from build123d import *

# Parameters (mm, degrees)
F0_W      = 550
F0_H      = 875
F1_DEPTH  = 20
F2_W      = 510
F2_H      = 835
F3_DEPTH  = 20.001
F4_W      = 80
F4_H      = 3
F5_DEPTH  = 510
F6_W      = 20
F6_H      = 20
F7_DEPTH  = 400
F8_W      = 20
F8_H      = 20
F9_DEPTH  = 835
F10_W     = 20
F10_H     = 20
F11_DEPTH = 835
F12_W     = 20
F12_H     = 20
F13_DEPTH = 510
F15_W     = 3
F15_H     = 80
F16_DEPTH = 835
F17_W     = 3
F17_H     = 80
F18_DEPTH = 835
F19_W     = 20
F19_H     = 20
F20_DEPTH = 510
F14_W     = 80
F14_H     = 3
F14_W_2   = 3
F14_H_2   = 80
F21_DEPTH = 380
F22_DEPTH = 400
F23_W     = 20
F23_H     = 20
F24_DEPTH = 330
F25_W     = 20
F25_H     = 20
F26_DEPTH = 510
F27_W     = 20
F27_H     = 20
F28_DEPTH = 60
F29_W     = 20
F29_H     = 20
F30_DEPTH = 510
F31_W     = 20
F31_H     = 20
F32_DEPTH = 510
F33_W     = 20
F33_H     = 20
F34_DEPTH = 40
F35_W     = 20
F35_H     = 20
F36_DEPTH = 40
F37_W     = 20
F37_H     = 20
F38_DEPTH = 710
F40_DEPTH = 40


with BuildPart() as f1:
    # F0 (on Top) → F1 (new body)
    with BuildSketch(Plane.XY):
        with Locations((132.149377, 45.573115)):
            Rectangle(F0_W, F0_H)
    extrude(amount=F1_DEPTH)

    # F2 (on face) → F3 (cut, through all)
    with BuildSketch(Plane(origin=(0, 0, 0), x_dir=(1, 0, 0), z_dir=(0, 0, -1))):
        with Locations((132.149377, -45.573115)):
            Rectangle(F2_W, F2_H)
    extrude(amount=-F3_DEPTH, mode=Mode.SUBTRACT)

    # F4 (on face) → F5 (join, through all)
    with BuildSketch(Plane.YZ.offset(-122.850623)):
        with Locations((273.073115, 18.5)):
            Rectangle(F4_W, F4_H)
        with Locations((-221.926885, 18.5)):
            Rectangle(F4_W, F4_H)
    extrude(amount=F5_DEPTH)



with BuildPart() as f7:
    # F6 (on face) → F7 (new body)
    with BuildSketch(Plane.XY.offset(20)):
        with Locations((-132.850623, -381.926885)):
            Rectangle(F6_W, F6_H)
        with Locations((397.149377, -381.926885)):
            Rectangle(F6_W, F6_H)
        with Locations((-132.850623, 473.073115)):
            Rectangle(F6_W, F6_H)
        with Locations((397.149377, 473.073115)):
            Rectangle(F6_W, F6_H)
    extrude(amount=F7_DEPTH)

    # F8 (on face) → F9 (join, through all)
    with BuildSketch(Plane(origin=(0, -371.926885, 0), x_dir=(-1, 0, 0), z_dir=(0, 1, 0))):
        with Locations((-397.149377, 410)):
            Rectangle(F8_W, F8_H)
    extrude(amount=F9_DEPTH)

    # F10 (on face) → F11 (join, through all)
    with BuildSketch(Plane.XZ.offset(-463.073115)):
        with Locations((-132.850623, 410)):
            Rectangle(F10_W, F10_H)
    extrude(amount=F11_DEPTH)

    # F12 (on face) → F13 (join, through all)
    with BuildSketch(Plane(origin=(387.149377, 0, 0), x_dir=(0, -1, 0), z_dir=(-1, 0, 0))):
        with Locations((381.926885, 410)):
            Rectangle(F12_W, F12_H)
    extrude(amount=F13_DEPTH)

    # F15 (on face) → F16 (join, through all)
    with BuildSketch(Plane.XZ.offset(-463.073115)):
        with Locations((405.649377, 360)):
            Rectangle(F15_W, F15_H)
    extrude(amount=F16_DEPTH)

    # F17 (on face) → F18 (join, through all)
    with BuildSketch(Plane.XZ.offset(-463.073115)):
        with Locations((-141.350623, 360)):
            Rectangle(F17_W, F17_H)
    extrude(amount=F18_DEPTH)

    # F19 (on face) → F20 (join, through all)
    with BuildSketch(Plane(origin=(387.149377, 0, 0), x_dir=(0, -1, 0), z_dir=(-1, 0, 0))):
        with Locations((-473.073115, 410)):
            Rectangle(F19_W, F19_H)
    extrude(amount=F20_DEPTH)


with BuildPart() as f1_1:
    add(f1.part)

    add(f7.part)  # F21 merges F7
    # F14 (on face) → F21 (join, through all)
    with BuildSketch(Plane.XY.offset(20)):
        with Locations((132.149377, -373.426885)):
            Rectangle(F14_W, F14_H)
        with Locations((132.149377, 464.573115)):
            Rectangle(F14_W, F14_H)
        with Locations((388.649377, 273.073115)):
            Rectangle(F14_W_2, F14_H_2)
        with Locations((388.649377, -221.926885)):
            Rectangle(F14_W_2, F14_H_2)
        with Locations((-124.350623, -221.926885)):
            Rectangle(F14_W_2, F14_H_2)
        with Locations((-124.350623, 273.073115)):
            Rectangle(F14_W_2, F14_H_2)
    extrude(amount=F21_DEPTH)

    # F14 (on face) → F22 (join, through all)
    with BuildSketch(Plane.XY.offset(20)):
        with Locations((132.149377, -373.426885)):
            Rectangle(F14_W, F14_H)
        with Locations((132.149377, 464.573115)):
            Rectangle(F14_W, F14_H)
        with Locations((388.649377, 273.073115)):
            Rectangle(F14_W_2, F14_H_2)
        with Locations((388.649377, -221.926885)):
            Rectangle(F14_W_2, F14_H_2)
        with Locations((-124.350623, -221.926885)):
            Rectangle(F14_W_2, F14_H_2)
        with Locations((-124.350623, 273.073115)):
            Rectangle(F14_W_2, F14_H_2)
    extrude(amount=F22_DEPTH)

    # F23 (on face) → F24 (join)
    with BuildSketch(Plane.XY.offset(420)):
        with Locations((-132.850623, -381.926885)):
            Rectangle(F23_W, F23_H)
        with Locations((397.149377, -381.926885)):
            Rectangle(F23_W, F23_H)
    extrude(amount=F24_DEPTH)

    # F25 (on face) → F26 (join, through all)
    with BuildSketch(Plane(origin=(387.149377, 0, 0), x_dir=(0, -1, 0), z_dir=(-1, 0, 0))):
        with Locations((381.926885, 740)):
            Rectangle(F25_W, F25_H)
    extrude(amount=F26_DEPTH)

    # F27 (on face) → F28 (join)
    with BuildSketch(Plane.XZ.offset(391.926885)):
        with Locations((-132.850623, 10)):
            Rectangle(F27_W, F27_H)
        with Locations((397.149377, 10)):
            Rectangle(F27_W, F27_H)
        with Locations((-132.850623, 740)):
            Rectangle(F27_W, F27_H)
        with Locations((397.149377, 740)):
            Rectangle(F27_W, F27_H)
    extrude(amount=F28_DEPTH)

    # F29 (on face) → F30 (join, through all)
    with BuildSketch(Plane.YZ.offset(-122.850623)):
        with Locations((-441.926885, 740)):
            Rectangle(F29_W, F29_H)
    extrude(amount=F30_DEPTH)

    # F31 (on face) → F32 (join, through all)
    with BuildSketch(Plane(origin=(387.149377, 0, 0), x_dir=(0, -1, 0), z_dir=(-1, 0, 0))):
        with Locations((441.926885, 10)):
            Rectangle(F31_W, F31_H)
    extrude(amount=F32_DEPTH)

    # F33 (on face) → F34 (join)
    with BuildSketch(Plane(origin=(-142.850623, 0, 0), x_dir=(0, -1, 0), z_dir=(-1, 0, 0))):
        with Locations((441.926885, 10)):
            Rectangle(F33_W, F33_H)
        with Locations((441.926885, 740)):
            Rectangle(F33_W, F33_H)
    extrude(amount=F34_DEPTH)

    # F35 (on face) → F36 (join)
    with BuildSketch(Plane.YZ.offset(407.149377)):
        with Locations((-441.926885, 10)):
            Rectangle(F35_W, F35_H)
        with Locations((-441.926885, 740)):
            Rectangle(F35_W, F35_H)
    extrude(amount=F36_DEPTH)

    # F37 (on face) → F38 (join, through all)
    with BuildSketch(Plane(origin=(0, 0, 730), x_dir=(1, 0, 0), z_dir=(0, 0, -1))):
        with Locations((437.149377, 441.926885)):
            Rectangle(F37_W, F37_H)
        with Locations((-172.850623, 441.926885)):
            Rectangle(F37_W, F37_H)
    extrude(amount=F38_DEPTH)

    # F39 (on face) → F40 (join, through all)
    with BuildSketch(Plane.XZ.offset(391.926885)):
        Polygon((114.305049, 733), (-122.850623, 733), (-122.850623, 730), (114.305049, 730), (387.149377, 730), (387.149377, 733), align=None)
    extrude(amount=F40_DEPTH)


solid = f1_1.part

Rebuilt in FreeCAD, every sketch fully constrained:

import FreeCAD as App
import Part
import Sketcher

V = App.Vector


def add_polygon(sketch, points):
    """Adds a closed chain of lines whose ends are joined by coincident constraints."""
    first, n = sketch.GeometryCount, len(points)
    for a, b in zip(points, points[1:] + points[:1]):
        sketch.addGeometry(Part.LineSegment(App.Vector(*a, 0), App.Vector(*b, 0)), False)
    for i in range(n):
        sketch.addConstraint(Sketcher.Constraint("Coincident", first + i, 2, first + (i + 1) % n, 1))

doc = App.newDocument("Part")
body = doc.addObject("PartDesign::Body", "Body")

# Sketch on XY plane
sketch1 = body.newObject("Sketcher::SketchObject", "Sketch")
sketch1.AttachmentSupport = (doc.getObject("XY_Plane"), [""])
sketch1.MapMode = "FlatFace"
add_polygon(sketch1, [(-143, 483), (-143, -392), (407, -392), (407, 483)])  # lines 0-3
sketch1.addConstraint([
    Sketcher.Constraint("Vertical", 0),
    Sketcher.Constraint("Horizontal", 1),
    Sketcher.Constraint("Vertical", 2),
    Sketcher.Constraint("Horizontal", 3),
    Sketcher.Constraint("DistanceX", 1, 1, 1, 2, 550.0),
    Sketcher.Constraint("DistanceY", 0, 2, 0, 1, 875.0),
    Sketcher.Constraint("DistanceX", 0, 2, -1, 1, 142.850623),
    Sketcher.Constraint("DistanceY", 0, 2, -1, 1, 391.926885),
])
pad1 = body.newObject("PartDesign::Pad", "Pad")
pad1.Profile = sketch1
pad1.Length = 20

# Sketch on XY plane
sketch2 = body.newObject("Sketcher::SketchObject", "Sketch001")
sketch2.AttachmentSupport = (doc.getObject("XY_Plane"), [""])
sketch2.MapMode = "FlatFace"
add_polygon(sketch2, [(-123, -372), (-123, 463), (387, 463), (387, -372)])  # lines 0-3
sketch2.addConstraint([
    Sketcher.Constraint("Vertical", 0),
    Sketcher.Constraint("Horizontal", 1),
    Sketcher.Constraint("Vertical", 2),
    Sketcher.Constraint("Horizontal", 3),
    Sketcher.Constraint("DistanceX", 1, 1, 1, 2, 510.0),
    Sketcher.Constraint("DistanceY", 0, 1, 0, 2, 835.0),
    Sketcher.Constraint("DistanceX", 0, 2, -1, 1, 122.850623),
    Sketcher.Constraint("DistanceY", -1, 1, 0, 2, 463.073115),
])
pocket1 = body.newObject("PartDesign::Pocket", "Pocket")
pocket1.Profile = sketch2
pocket1.Type = "ThroughAll"
pocket1.Reversed = True

# Sketch on YZ plane
sketch3 = body.newObject("Sketcher::SketchObject", "Sketch002")
sketch3.AttachmentSupport = (doc.getObject("YZ_Plane"), [""])
sketch3.MapMode = "FlatFace"
sketch3.AttachmentOffset = App.Placement(V(0, 0, -122.850623), App.Rotation())
add_polygon(sketch3, [(233.1, 20), (233.1, 17), (313.1, 17), (313.1, 20)])  # lines 0-3
add_polygon(sketch3, [(-261.9, 20), (-261.9, 17), (-181.9, 17), (-181.9, 20)])  # lines 4-7
sketch3.addConstraint([
    Sketcher.Constraint("Vertical", 0),
    Sketcher.Constraint("Horizontal", 1),
    Sketcher.Constraint("Vertical", 2),
    Sketcher.Constraint("Horizontal", 3),
    Sketcher.Constraint("Vertical", 4),
    Sketcher.Constraint("Horizontal", 5),
    Sketcher.Constraint("Vertical", 6),
    Sketcher.Constraint("Horizontal", 7),
    Sketcher.Constraint("Horizontal", 1, 2, 4, 2),
    Sketcher.Constraint("Horizontal", 3, 2, 6, 2),
    Sketcher.Constraint("Equal", 3, 5),
    Sketcher.Constraint("DistanceX", 1, 1, 1, 2, 80.0),
    Sketcher.Constraint("DistanceY", 0, 2, 0, 1, 3.0),
    Sketcher.Constraint("DistanceY", -1, 1, 0, 2, 17.0),
    Sketcher.Constraint("DistanceX", 4, 2, 0, 2, 495.0),
    Sketcher.Constraint("DistanceX", -1, 1, 0, 2, 233.073115),
])
pad2 = body.newObject("PartDesign::Pad", "Pad001")
pad2.Profile = sketch3
pad2.Type = "UpToLast"
body2 = doc.addObject("PartDesign::Body", "Body001")
body2.AllowCompound = True

# Sketch on XY plane
sketch4 = body2.newObject("Sketcher::SketchObject", "Sketch003")
sketch4.AttachmentSupport = (doc.getObject("XY_Plane001"), [""])
sketch4.MapMode = "FlatFace"
sketch4.AttachmentOffset = App.Placement(V(0, 0, 20), App.Rotation())
add_polygon(sketch4, [(-143, -372), (-143, -392), (-123, -392), (-123, -372)])  # lines 0-3
add_polygon(sketch4, [(387, -372), (387, -392), (407, -392), (407, -372)])  # lines 4-7
add_polygon(sketch4, [(-143, 483), (-143, 463), (-123, 463), (-123, 483)])  # lines 8-11
add_polygon(sketch4, [(387, 483), (387, 463), (407, 463), (407, 483)])  # lines 12-15
sketch4.addConstraint([
    Sketcher.Constraint("Vertical", 0),
    Sketcher.Constraint("Horizontal", 1),
    Sketcher.Constraint("Vertical", 2),
    Sketcher.Constraint("Horizontal", 3),
    Sketcher.Constraint("Vertical", 4),
    Sketcher.Constraint("Horizontal", 5),
    Sketcher.Constraint("Vertical", 6),
    Sketcher.Constraint("Horizontal", 7),
    Sketcher.Constraint("Vertical", 8),
    Sketcher.Constraint("Horizontal", 9),
    Sketcher.Constraint("Vertical", 10),
    Sketcher.Constraint("Horizontal", 11),
    Sketcher.Constraint("Vertical", 12),
    Sketcher.Constraint("Horizontal", 13),
    Sketcher.Constraint("Vertical", 14),
    Sketcher.Constraint("Horizontal", 15),
    Sketcher.Constraint("Horizontal", 1, 2, 4, 2),
    Sketcher.Constraint("Horizontal", 3, 2, 6, 2),
    Sketcher.Constraint("Horizontal", 9, 2, 12, 2),
    Sketcher.Constraint("Horizontal", 11, 2, 14, 2),
    Sketcher.Constraint("Vertical", 3, 2, 8, 2),
    Sketcher.Constraint("Vertical", 2, 2, 9, 2),
    Sketcher.Constraint("Vertical", 7, 2, 12, 2),
    Sketcher.Constraint("Vertical", 6, 2, 13, 2),
    Sketcher.Constraint("Equal", 3, 5),
    Sketcher.Constraint("Equal", 15, 0),
    Sketcher.Constraint("Equal", 6, 8),
    Sketcher.Constraint("DistanceX", 1, 1, 1, 2, 20.0),
    Sketcher.Constraint("DistanceX", 1, 2, 4, 2, 510.0),
    Sketcher.Constraint("DistanceY", 3, 2, 8, 2, 835.0),
    Sketcher.Constraint("DistanceX", 0, 2, -1, 1, 142.850623),
    Sketcher.Constraint("DistanceY", 0, 2, -1, 1, 391.926885),
])
pad3 = body2.newObject("PartDesign::Pad", "Pad002")
pad3.Profile = sketch4
pad3.Length = 400

# Sketch on XZ plane
sketch5 = body2.newObject("Sketcher::SketchObject", "Sketch004")
sketch5.AttachmentSupport = (doc.getObject("XZ_Plane001"), [""])
sketch5.MapMode = "FlatFace"
sketch5.AttachmentOffset = App.Placement(V(0, 0, 371.926885), App.Rotation())
add_polygon(sketch5, [(407, 420), (407, 400), (387, 400), (387, 420)])  # lines 0-3
sketch5.addConstraint([
    Sketcher.Constraint("Vertical", 0),
    Sketcher.Constraint("Horizontal", 1),
    Sketcher.Constraint("Vertical", 2),
    Sketcher.Constraint("Horizontal", 3),
    Sketcher.Constraint("Equal", 3, 0),
    Sketcher.Constraint("DistanceX", 1, 2, 1, 1, 20.0),
    Sketcher.Constraint("DistanceY", -1, 1, 0, 2, 400.0),
    Sketcher.Constraint("DistanceX", -1, 1, 0, 2, 407.149377),
])
pad4 = body2.newObject("PartDesign::Pad", "Pad003")
pad4.Profile = sketch5
pad4.Type = "UpToLast"
pad4.Reversed = True

# Sketch on XZ plane
sketch6 = body2.newObject("Sketcher::SketchObject", "Sketch005")
sketch6.AttachmentSupport = (doc.getObject("XZ_Plane001"), [""])
sketch6.MapMode = "FlatFace"
sketch6.AttachmentOffset = App.Placement(V(0, 0, -463.073115), App.Rotation())
add_polygon(sketch6, [(-143, 420), (-143, 400), (-123, 400), (-123, 420)])  # lines 0-3
sketch6.addConstraint([
    Sketcher.Constraint("Vertical", 0),
    Sketcher.Constraint("Horizontal", 1),
    Sketcher.Constraint("Vertical", 2),
    Sketcher.Constraint("Horizontal", 3),
    Sketcher.Constraint("Equal", 3, 0),
    Sketcher.Constraint("DistanceX", 1, 1, 1, 2, 20.0),
    Sketcher.Constraint("DistanceY", -1, 1, 0, 2, 400.0),
    Sketcher.Constraint("DistanceX", 0, 2, -1, 1, 142.850623),
])
pad5 = body2.newObject("PartDesign::Pad", "Pad004")
pad5.Profile = sketch6
pad5.Type = "UpToLast"

# Sketch on YZ plane
sketch7 = body2.newObject("Sketcher::SketchObject", "Sketch006")
sketch7.AttachmentSupport = (doc.getObject("YZ_Plane001"), [""])
sketch7.MapMode = "FlatFace"
sketch7.AttachmentOffset = App.Placement(V(0, 0, 387.149377), App.Rotation())
add_polygon(sketch7, [(-372, 420), (-372, 400), (-392, 400), (-392, 420)])  # lines 0-3
sketch7.addConstraint([
    Sketcher.Constraint("Vertical", 0),
    Sketcher.Constraint("Horizontal", 1),
    Sketcher.Constraint("Vertical", 2),
    Sketcher.Constraint("Horizontal", 3),
    Sketcher.Constraint("Equal", 3, 0),
    Sketcher.Constraint("DistanceX", 1, 2, 1, 1, 20.0),
    Sketcher.Constraint("DistanceY", -1, 1, 0, 2, 400.0),
    Sketcher.Constraint("DistanceX", 0, 2, -1, 1, 371.926885),
])
pad6 = body2.newObject("PartDesign::Pad", "Pad005")
pad6.Profile = sketch7
pad6.Type = "UpToLast"
pad6.Reversed = True

# Sketch on XZ plane
sketch8 = body2.newObject("Sketcher::SketchObject", "Sketch007")
sketch8.AttachmentSupport = (doc.getObject("XZ_Plane001"), [""])
sketch8.MapMode = "FlatFace"
sketch8.AttachmentOffset = App.Placement(V(0, 0, -463.073115), App.Rotation())
add_polygon(sketch8, [(404.1, 400), (404.1, 320), (407.1, 320), (407.1, 400)])  # lines 0-3
sketch8.addConstraint([
    Sketcher.Constraint("Vertical", 0),
    Sketcher.Constraint("Horizontal", 1),
    Sketcher.Constraint("Vertical", 2),
    Sketcher.Constraint("Horizontal", 3),
    Sketcher.Constraint("DistanceX", 1, 1, 1, 2, 3.0),
    Sketcher.Constraint("DistanceY", 0, 2, 0, 1, 80.0),
    Sketcher.Constraint("DistanceY", -1, 1, 0, 2, 320.0),
    Sketcher.Constraint("DistanceX", -1, 1, 0, 2, 404.149377),
])
pad7 = body2.newObject("PartDesign::Pad", "Pad006")
pad7.Profile = sketch8
pad7.Type = "UpToLast"

# Sketch on XZ plane
sketch9 = body2.newObject("Sketcher::SketchObject", "Sketch008")
sketch9.AttachmentSupport = (doc.getObject("XZ_Plane001"), [""])
sketch9.MapMode = "FlatFace"
sketch9.AttachmentOffset = App.Placement(V(0, 0, -463.073115), App.Rotation())
add_polygon(sketch9, [(-142.9, 400), (-142.9, 320), (-139.9, 320), (-139.9, 400)])  # lines 0-3
sketch9.addConstraint([
    Sketcher.Constraint("Vertical", 0),
    Sketcher.Constraint("Horizontal", 1),
    Sketcher.Constraint("Vertical", 2),
    Sketcher.Constraint("Horizontal", 3),
    Sketcher.Constraint("DistanceX", 1, 1, 1, 2, 3.0),
    Sketcher.Constraint("DistanceY", 0, 2, 0, 1, 80.0),
    Sketcher.Constraint("DistanceY", -1, 1, 0, 2, 320.0),
    Sketcher.Constraint("DistanceX", 0, 2, -1, 1, 142.850623),
])
pad8 = body2.newObject("PartDesign::Pad", "Pad007")
pad8.Profile = sketch9
pad8.Type = "UpToLast"

# Sketch on YZ plane
sketch10 = body2.newObject("Sketcher::SketchObject", "Sketch009")
sketch10.AttachmentSupport = (doc.getObject("YZ_Plane001"), [""])
sketch10.MapMode = "FlatFace"
sketch10.AttachmentOffset = App.Placement(V(0, 0, 387.149377), App.Rotation())
add_polygon(sketch10, [(483, 420), (483, 400), (463, 400), (463, 420)])  # lines 0-3
sketch10.addConstraint([
    Sketcher.Constraint("Vertical", 0),
    Sketcher.Constraint("Horizontal", 1),
    Sketcher.Constraint("Vertical", 2),
    Sketcher.Constraint("Horizontal", 3),
    Sketcher.Constraint("Equal", 3, 0),
    Sketcher.Constraint("DistanceX", 1, 2, 1, 1, 20.0),
    Sketcher.Constraint("DistanceY", -1, 1, 0, 2, 400.0),
    Sketcher.Constraint("DistanceX", -1, 1, 0, 2, 483.073115),
])
pad9 = body2.newObject("PartDesign::Pad", "Pad008")
pad9.Profile = sketch10
pad9.Type = "UpToLast"
pad9.Reversed = True
doc.recompute()

boolean = body.newObject("PartDesign::Boolean", "Boolean")
boolean.Type = "Fuse"
boolean.addObjects([body2])

# Sketch on XY plane
sketch11 = body.newObject("Sketcher::SketchObject", "Sketch010")
sketch11.AttachmentSupport = (doc.getObject("XY_Plane"), [""])
sketch11.MapMode = "FlatFace"
sketch11.AttachmentOffset = App.Placement(V(0, 0, 20), App.Rotation())
add_polygon(sketch11, [(92.1, -371.9), (92.1, -374.9), (172.1, -374.9), (172.1, -371.9)])  # lines 0-3
add_polygon(sketch11, [(92.1, 466.1), (92.1, 463.1), (172.1, 463.1), (172.1, 466.1)])  # lines 4-7
add_polygon(sketch11, [(387.1, 313.1), (387.1, 233.1), (390.1, 233.1), (390.1, 313.1)])  # lines 8-11
add_polygon(sketch11, [(387.1, -181.9), (387.1, -261.9), (390.1, -261.9), (390.1, -181.9)])  # lines 12-15
add_polygon(sketch11, [(-125.9, -181.9), (-125.9, -261.9), (-122.9, -261.9), (-122.9, -181.9)])  # lines 16-19
add_polygon(sketch11, [(-125.9, 313.1), (-125.9, 233.1), (-122.9, 233.1), (-122.9, 313.1)])  # lines 20-23
sketch11.addConstraint([
    Sketcher.Constraint("Vertical", 0),
    Sketcher.Constraint("Horizontal", 1),
    Sketcher.Constraint("Vertical", 2),
    Sketcher.Constraint("Horizontal", 3),
    Sketcher.Constraint("Vertical", 4),
    Sketcher.Constraint("Horizontal", 5),
    Sketcher.Constraint("Vertical", 6),
    Sketcher.Constraint("Horizontal", 7),
    Sketcher.Constraint("Vertical", 8),
    Sketcher.Constraint("Horizontal", 9),
    Sketcher.Constraint("Vertical", 10),
    Sketcher.Constraint("Horizontal", 11),
    Sketcher.Constraint("Vertical", 12),
    Sketcher.Constraint("Horizontal", 13),
    Sketcher.Constraint("Vertical", 14),
    Sketcher.Constraint("Horizontal", 15),
    Sketcher.Constraint("Vertical", 16),
    Sketcher.Constraint("Horizontal", 17),
    Sketcher.Constraint("Vertical", 18),
    Sketcher.Constraint("Horizontal", 19),
    Sketcher.Constraint("Vertical", 20),
    Sketcher.Constraint("Horizontal", 21),
    Sketcher.Constraint("Vertical", 22),
    Sketcher.Constraint("Horizontal", 23),
    Sketcher.Constraint("Horizontal", 13, 2, 16, 2),
    Sketcher.Constraint("Horizontal", 15, 2, 18, 2),
    Sketcher.Constraint("Horizontal", 9, 2, 20, 2),
    Sketcher.Constraint("Horizontal", 11, 2, 22, 2),
    Sketcher.Constraint("Vertical", 3, 2, 4, 2),
    Sketcher.Constraint("Vertical", 2, 2, 5, 2),
    Sketcher.Constraint("Vertical", 11, 2, 12, 2),
    Sketcher.Constraint("Vertical", 10, 2, 13, 2),
    Sketcher.Constraint("Vertical", 19, 2, 20, 2),
    Sketcher.Constraint("Vertical", 18, 2, 21, 2),
    Sketcher.Constraint("Equal", 15, 17),
    Sketcher.Constraint("Equal", 23, 0),
    Sketcher.Constraint("Equal", 2, 4),
    Sketcher.Constraint("Equal", 7, 8),
    Sketcher.Constraint("Equal", 10, 12),
    Sketcher.Constraint("DistanceX", 1, 1, 1, 2, 80.0),
    Sketcher.Constraint("DistanceX", 9, 1, 9, 2, 3.0),
    Sketcher.Constraint("DistanceY", 3, 2, 4, 2, 835.0),
    Sketcher.Constraint("DistanceX", 5, 2, 8, 2, 215.0),
    Sketcher.Constraint("DistanceY", 8, 2, 5, 2, 230.0),
    Sketcher.Constraint("DistanceY", 2, 2, 12, 2, 110.0),
    Sketcher.Constraint("DistanceX", 16, 2, 3, 2, 218.0),
    Sketcher.Constraint("DistanceX", -1, 1, 0, 2, 92.149377),
    Sketcher.Constraint("DistanceY", 0, 2, -1, 1, 374.926885),
])
pad10 = body.newObject("PartDesign::Pad", "Pad009")
pad10.Profile = sketch11
pad10.Length = 380

# Sketch on XY plane
sketch12 = body.newObject("Sketcher::SketchObject", "Sketch011")
sketch12.AttachmentSupport = (doc.getObject("XY_Plane"), [""])
sketch12.MapMode = "FlatFace"
sketch12.AttachmentOffset = App.Placement(V(0, 0, 20), App.Rotation())
add_polygon(sketch12, [(92.1, -371.9), (92.1, -374.9), (172.1, -374.9), (172.1, -371.9)])  # lines 0-3
add_polygon(sketch12, [(92.1, 466.1), (92.1, 463.1), (172.1, 463.1), (172.1, 466.1)])  # lines 4-7
add_polygon(sketch12, [(387.1, 313.1), (387.1, 233.1), (390.1, 233.1), (390.1, 313.1)])  # lines 8-11
add_polygon(sketch12, [(387.1, -181.9), (387.1, -261.9), (390.1, -261.9), (390.1, -181.9)])  # lines 12-15
add_polygon(sketch12, [(-125.9, -181.9), (-125.9, -261.9), (-122.9, -261.9), (-122.9, -181.9)])  # lines 16-19
add_polygon(sketch12, [(-125.9, 313.1), (-125.9, 233.1), (-122.9, 233.1), (-122.9, 313.1)])  # lines 20-23
sketch12.addConstraint([
    Sketcher.Constraint("Vertical", 0),
    Sketcher.Constraint("Horizontal", 1),
    Sketcher.Constraint("Vertical", 2),
    Sketcher.Constraint("Horizontal", 3),
    Sketcher.Constraint("Vertical", 4),
    Sketcher.Constraint("Horizontal", 5),
    Sketcher.Constraint("Vertical", 6),
    Sketcher.Constraint("Horizontal", 7),
    Sketcher.Constraint("Vertical", 8),
    Sketcher.Constraint("Horizontal", 9),
    Sketcher.Constraint("Vertical", 10),
    Sketcher.Constraint("Horizontal", 11),
    Sketcher.Constraint("Vertical", 12),
    Sketcher.Constraint("Horizontal", 13),
    Sketcher.Constraint("Vertical", 14),
    Sketcher.Constraint("Horizontal", 15),
    Sketcher.Constraint("Vertical", 16),
    Sketcher.Constraint("Horizontal", 17),
    Sketcher.Constraint("Vertical", 18),
    Sketcher.Constraint("Horizontal", 19),
    Sketcher.Constraint("Vertical", 20),
    Sketcher.Constraint("Horizontal", 21),
    Sketcher.Constraint("Vertical", 22),
    Sketcher.Constraint("Horizontal", 23),
    Sketcher.Constraint("Horizontal", 13, 2, 16, 2),
    Sketcher.Constraint("Horizontal", 15, 2, 18, 2),
    Sketcher.Constraint("Horizontal", 9, 2, 20, 2),
    Sketcher.Constraint("Horizontal", 11, 2, 22, 2),
    Sketcher.Constraint("Vertical", 3, 2, 4, 2),
    Sketcher.Constraint("Vertical", 2, 2, 5, 2),
    Sketcher.Constraint("Vertical", 11, 2, 12, 2),
    Sketcher.Constraint("Vertical", 10, 2, 13, 2),
    Sketcher.Constraint("Vertical", 19, 2, 20, 2),
    Sketcher.Constraint("Vertical", 18, 2, 21, 2),
    Sketcher.Constraint("Equal", 15, 17),
    Sketcher.Constraint("Equal", 23, 0),
    Sketcher.Constraint("Equal", 2, 4),
    Sketcher.Constraint("Equal", 7, 8),
    Sketcher.Constraint("Equal", 10, 12),
    Sketcher.Constraint("DistanceX", 1, 1, 1, 2, 80.0),
    Sketcher.Constraint("DistanceX", 9, 1, 9, 2, 3.0),
    Sketcher.Constraint("DistanceY", 3, 2, 4, 2, 835.0),
    Sketcher.Constraint("DistanceX", 5, 2, 8, 2, 215.0),
    Sketcher.Constraint("DistanceY", 8, 2, 5, 2, 230.0),
    Sketcher.Constraint("DistanceY", 2, 2, 12, 2, 110.0),
    Sketcher.Constraint("DistanceX", 16, 2, 3, 2, 218.0),
    Sketcher.Constraint("DistanceX", -1, 1, 0, 2, 92.149377),
    Sketcher.Constraint("DistanceY", 0, 2, -1, 1, 374.926885),
])
pad11 = body.newObject("PartDesign::Pad", "Pad010")
pad11.Profile = sketch12
pad11.Length = 400

# Sketch on XY plane
sketch13 = body.newObject("Sketcher::SketchObject", "Sketch012")
sketch13.AttachmentSupport = (doc.getObject("XY_Plane"), [""])
sketch13.MapMode = "FlatFace"
sketch13.AttachmentOffset = App.Placement(V(0, 0, 420), App.Rotation())
add_polygon(sketch13, [(-143, -372), (-143, -392), (-123, -392), (-123, -372)])  # lines 0-3
add_polygon(sketch13, [(387, -372), (387, -392), (407, -392), (407, -372)])  # lines 4-7
sketch13.addConstraint([
    Sketcher.Constraint("Vertical", 0),
    Sketcher.Constraint("Horizontal", 1),
    Sketcher.Constraint("Vertical", 2),
    Sketcher.Constraint("Horizontal", 3),
    Sketcher.Constraint("Vertical", 4),
    Sketcher.Constraint("Horizontal", 5),
    Sketcher.Constraint("Vertical", 6),
    Sketcher.Constraint("Horizontal", 7),
    Sketcher.Constraint("Horizontal", 1, 2, 4, 2),
    Sketcher.Constraint("Horizontal", 3, 2, 6, 2),
    Sketcher.Constraint("Equal", 3, 5),
    Sketcher.Constraint("Equal", 7, 0),
    Sketcher.Constraint("DistanceX", 1, 1, 1, 2, 20.0),
    Sketcher.Constraint("DistanceX", 1, 2, 4, 2, 510.0),
    Sketcher.Constraint("DistanceX", 0, 2, -1, 1, 142.850623),
    Sketcher.Constraint("DistanceY", 0, 2, -1, 1, 391.926885),
])
pad12 = body.newObject("PartDesign::Pad", "Pad011")
pad12.Profile = sketch13
pad12.Length = 330

# Sketch on YZ plane
sketch14 = body.newObject("Sketcher::SketchObject", "Sketch013")
sketch14.AttachmentSupport = (doc.getObject("YZ_Plane"), [""])
sketch14.MapMode = "FlatFace"
sketch14.AttachmentOffset = App.Placement(V(0, 0, 387.149377), App.Rotation())
add_polygon(sketch14, [(-372, 750), (-372, 730), (-392, 730), (-392, 750)])  # lines 0-3
sketch14.addConstraint([
    Sketcher.Constraint("Vertical", 0),
    Sketcher.Constraint("Horizontal", 1),
    Sketcher.Constraint("Vertical", 2),
    Sketcher.Constraint("Horizontal", 3),
    Sketcher.Constraint("Equal", 3, 0),
    Sketcher.Constraint("DistanceX", 1, 2, 1, 1, 20.0),
    Sketcher.Constraint("DistanceY", -1, 1, 0, 2, 730.0),
    Sketcher.Constraint("DistanceX", 0, 2, -1, 1, 371.926885),
])
pad13 = body.newObject("PartDesign::Pad", "Pad012")
pad13.Profile = sketch14
pad13.Type = "UpToLast"
pad13.Reversed = True

# Sketch on XZ plane
sketch15 = body.newObject("Sketcher::SketchObject", "Sketch014")
sketch15.AttachmentSupport = (doc.getObject("XZ_Plane"), [""])
sketch15.MapMode = "FlatFace"
sketch15.AttachmentOffset = App.Placement(V(0, 0, 391.926885), App.Rotation())
add_polygon(sketch15, [(-143, 20), (-143, 0), (-123, 0), (-123, 20)])  # lines 0-3
add_polygon(sketch15, [(387, 20), (387, 0), (407, 0), (407, 20)])  # lines 4-7
add_polygon(sketch15, [(-143, 750), (-143, 730), (-123, 730), (-123, 750)])  # lines 8-11
add_polygon(sketch15, [(387, 750), (387, 730), (407, 730), (407, 750)])  # lines 12-15
sketch15.addConstraint([
    Sketcher.Constraint("Vertical", 0),
    Sketcher.Constraint("Horizontal", 1),
    Sketcher.Constraint("Vertical", 2),
    Sketcher.Constraint("Horizontal", 3),
    Sketcher.Constraint("Vertical", 4),
    Sketcher.Constraint("Horizontal", 5),
    Sketcher.Constraint("Vertical", 6),
    Sketcher.Constraint("Horizontal", 7),
    Sketcher.Constraint("Vertical", 8),
    Sketcher.Constraint("Horizontal", 9),
    Sketcher.Constraint("Vertical", 10),
    Sketcher.Constraint("Horizontal", 11),
    Sketcher.Constraint("Vertical", 12),
    Sketcher.Constraint("Horizontal", 13),
    Sketcher.Constraint("Vertical", 14),
    Sketcher.Constraint("Horizontal", 15),
    Sketcher.Constraint("PointOnObject", 0, 2, -1),
    Sketcher.Constraint("PointOnObject", 4, 2, -1),
    Sketcher.Constraint("Horizontal", 3, 2, 6, 2),
    Sketcher.Constraint("Horizontal", 9, 2, 12, 2),
    Sketcher.Constraint("Horizontal", 11, 2, 14, 2),
    Sketcher.Constraint("Vertical", 3, 2, 8, 2),
    Sketcher.Constraint("Vertical", 2, 2, 9, 2),
    Sketcher.Constraint("Vertical", 7, 2, 12, 2),
    Sketcher.Constraint("Vertical", 6, 2, 13, 2),
    Sketcher.Constraint("Equal", 3, 5),
    Sketcher.Constraint("Equal", 15, 0),
    Sketcher.Constraint("Equal", 6, 8),
    Sketcher.Constraint("DistanceX", 1, 1, 1, 2, 20.0),
    Sketcher.Constraint("DistanceY", -1, 1, 8, 2, 730.0),
    Sketcher.Constraint("DistanceX", 1, 2, 4, 2, 510.0),
    Sketcher.Constraint("DistanceX", 0, 2, -1, 1, 142.850623),
])
pad14 = body.newObject("PartDesign::Pad", "Pad013")
pad14.Profile = sketch15
pad14.Length = 60

# Sketch on YZ plane
sketch16 = body.newObject("Sketcher::SketchObject", "Sketch015")
sketch16.AttachmentSupport = (doc.getObject("YZ_Plane"), [""])
sketch16.MapMode = "FlatFace"
sketch16.AttachmentOffset = App.Placement(V(0, 0, -122.850623), App.Rotation())
add_polygon(sketch16, [(-452, 750), (-452, 730), (-432, 730), (-432, 750)])  # lines 0-3
sketch16.addConstraint([
    Sketcher.Constraint("Vertical", 0),
    Sketcher.Constraint("Horizontal", 1),
    Sketcher.Constraint("Vertical", 2),
    Sketcher.Constraint("Horizontal", 3),
    Sketcher.Constraint("Equal", 3, 0),
    Sketcher.Constraint("DistanceX", 1, 1, 1, 2, 20.0),
    Sketcher.Constraint("DistanceY", -1, 1, 0, 2, 730.0),
    Sketcher.Constraint("DistanceX", 0, 2, -1, 1, 451.926885),
])
pad15 = body.newObject("PartDesign::Pad", "Pad014")
pad15.Profile = sketch16
pad15.Type = "UpToLast"

# Sketch on YZ plane
sketch17 = body.newObject("Sketcher::SketchObject", "Sketch016")
sketch17.AttachmentSupport = (doc.getObject("YZ_Plane"), [""])
sketch17.MapMode = "FlatFace"
sketch17.AttachmentOffset = App.Placement(V(0, 0, 387.149377), App.Rotation())
add_polygon(sketch17, [(-432, 20), (-432, 0), (-452, 0), (-452, 20)])  # lines 0-3
sketch17.addConstraint([
    Sketcher.Constraint("Vertical", 0),
    Sketcher.Constraint("Horizontal", 1),
    Sketcher.Constraint("Vertical", 2),
    Sketcher.Constraint("Horizontal", 3),
    Sketcher.Constraint("PointOnObject", 0, 2, -1),
    Sketcher.Constraint("Equal", 3, 0),
    Sketcher.Constraint("DistanceX", 1, 2, 1, 1, 20.0),
    Sketcher.Constraint("DistanceX", 0, 2, -1, 1, 431.926885),
])
pad16 = body.newObject("PartDesign::Pad", "Pad015")
pad16.Profile = sketch17
pad16.Type = "UpToLast"
pad16.Reversed = True

# Sketch on YZ plane
sketch18 = body.newObject("Sketcher::SketchObject", "Sketch017")
sketch18.AttachmentSupport = (doc.getObject("YZ_Plane"), [""])
sketch18.MapMode = "FlatFace"
sketch18.AttachmentOffset = App.Placement(V(0, 0, -142.850623), App.Rotation())
add_polygon(sketch18, [(-432, 20), (-432, 0), (-452, 0), (-452, 20)])  # lines 0-3
add_polygon(sketch18, [(-432, 750), (-432, 730), (-452, 730), (-452, 750)])  # lines 4-7
sketch18.addConstraint([
    Sketcher.Constraint("Vertical", 0),
    Sketcher.Constraint("Horizontal", 1),
    Sketcher.Constraint("Vertical", 2),
    Sketcher.Constraint("Horizontal", 3),
    Sketcher.Constraint("Vertical", 4),
    Sketcher.Constraint("Horizontal", 5),
    Sketcher.Constraint("Vertical", 6),
    Sketcher.Constraint("Horizontal", 7),
    Sketcher.Constraint("PointOnObject", 0, 2, -1),
    Sketcher.Constraint("Vertical", 3, 2, 4, 2),
    Sketcher.Constraint("Vertical", 2, 2, 5, 2),
    Sketcher.Constraint("Equal", 7, 0),
    Sketcher.Constraint("Equal", 2, 4),
    Sketcher.Constraint("DistanceX", 1, 2, 1, 1, 20.0),
    Sketcher.Constraint("DistanceY", -1, 1, 4, 2, 730.0),
    Sketcher.Constraint("DistanceX", 0, 2, -1, 1, 431.926885),
])
pad17 = body.newObject("PartDesign::Pad", "Pad016")
pad17.Profile = sketch18
pad17.Length = 40
pad17.Reversed = True

# Sketch on YZ plane
sketch19 = body.newObject("Sketcher::SketchObject", "Sketch018")
sketch19.AttachmentSupport = (doc.getObject("YZ_Plane"), [""])
sketch19.MapMode = "FlatFace"
sketch19.AttachmentOffset = App.Placement(V(0, 0, 407.149377), App.Rotation())
add_polygon(sketch19, [(-452, 20), (-452, 0), (-432, 0), (-432, 20)])  # lines 0-3
add_polygon(sketch19, [(-452, 750), (-452, 730), (-432, 730), (-432, 750)])  # lines 4-7
sketch19.addConstraint([
    Sketcher.Constraint("Vertical", 0),
    Sketcher.Constraint("Horizontal", 1),
    Sketcher.Constraint("Vertical", 2),
    Sketcher.Constraint("Horizontal", 3),
    Sketcher.Constraint("Vertical", 4),
    Sketcher.Constraint("Horizontal", 5),
    Sketcher.Constraint("Vertical", 6),
    Sketcher.Constraint("Horizontal", 7),
    Sketcher.Constraint("PointOnObject", 0, 2, -1),
    Sketcher.Constraint("Vertical", 3, 2, 4, 2),
    Sketcher.Constraint("Vertical", 2, 2, 5, 2),
    Sketcher.Constraint("Equal", 7, 0),
    Sketcher.Constraint("Equal", 2, 4),
    Sketcher.Constraint("DistanceX", 1, 1, 1, 2, 20.0),
    Sketcher.Constraint("DistanceY", -1, 1, 4, 2, 730.0),
    Sketcher.Constraint("DistanceX", 0, 2, -1, 1, 451.926885),
])
pad18 = body.newObject("PartDesign::Pad", "Pad017")
pad18.Profile = sketch19
pad18.Length = 40

# Sketch on XY plane
sketch20 = body.newObject("Sketcher::SketchObject", "Sketch019")
sketch20.AttachmentSupport = (doc.getObject("XY_Plane"), [""])
sketch20.MapMode = "FlatFace"
sketch20.AttachmentOffset = App.Placement(V(0, 0, 730), App.Rotation())
add_polygon(sketch20, [(427, -452), (427, -432), (447, -432), (447, -452)])  # lines 0-3
add_polygon(sketch20, [(-183, -452), (-183, -432), (-163, -432), (-163, -452)])  # lines 4-7
sketch20.addConstraint([
    Sketcher.Constraint("Vertical", 0),
    Sketcher.Constraint("Horizontal", 1),
    Sketcher.Constraint("Vertical", 2),
    Sketcher.Constraint("Horizontal", 3),
    Sketcher.Constraint("Vertical", 4),
    Sketcher.Constraint("Horizontal", 5),
    Sketcher.Constraint("Vertical", 6),
    Sketcher.Constraint("Horizontal", 7),
    Sketcher.Constraint("Horizontal", 1, 2, 4, 2),
    Sketcher.Constraint("Horizontal", 3, 2, 6, 2),
    Sketcher.Constraint("Equal", 3, 5),
    Sketcher.Constraint("Equal", 7, 0),
    Sketcher.Constraint("DistanceX", 1, 1, 1, 2, 20.0),
    Sketcher.Constraint("DistanceX", 4, 2, 0, 2, 610.0),
    Sketcher.Constraint("DistanceX", -1, 1, 0, 2, 427.149377),
    Sketcher.Constraint("DistanceY", 0, 2, -1, 1, 431.926885),
])
pad19 = body.newObject("PartDesign::Pad", "Pad018")
pad19.Profile = sketch20
pad19.Type = "UpToLast"
pad19.Reversed = True

# Sketch on XZ plane
sketch21 = body.newObject("Sketcher::SketchObject", "Sketch020")
sketch21.AttachmentSupport = (doc.getObject("XZ_Plane"), [""])
sketch21.MapMode = "FlatFace"
sketch21.AttachmentOffset = App.Placement(V(0, 0, 391.926885), App.Rotation())
add_polygon(sketch21, [(-122.9, 733), (-122.9, 730), (387.1, 730), (387.1, 733)])  # lines 0-3
sketch21.addConstraint([
    Sketcher.Constraint("Vertical", 0),
    Sketcher.Constraint("Horizontal", 1),
    Sketcher.Constraint("Vertical", 2),
    Sketcher.Constraint("Horizontal", 3),
    Sketcher.Constraint("DistanceX", 1, 1, 1, 2, 510.0),
    Sketcher.Constraint("DistanceY", 0, 2, 0, 1, 3.0),
    Sketcher.Constraint("DistanceY", -1, 1, 0, 2, 730.0),
    Sketcher.Constraint("DistanceX", 0, 2, -1, 1, 122.850623),
])
pad20 = body.newObject("PartDesign::Pad", "Pad019")
pad20.Profile = sketch21
pad20.Type = "UpToLast"

doc.recompute()
